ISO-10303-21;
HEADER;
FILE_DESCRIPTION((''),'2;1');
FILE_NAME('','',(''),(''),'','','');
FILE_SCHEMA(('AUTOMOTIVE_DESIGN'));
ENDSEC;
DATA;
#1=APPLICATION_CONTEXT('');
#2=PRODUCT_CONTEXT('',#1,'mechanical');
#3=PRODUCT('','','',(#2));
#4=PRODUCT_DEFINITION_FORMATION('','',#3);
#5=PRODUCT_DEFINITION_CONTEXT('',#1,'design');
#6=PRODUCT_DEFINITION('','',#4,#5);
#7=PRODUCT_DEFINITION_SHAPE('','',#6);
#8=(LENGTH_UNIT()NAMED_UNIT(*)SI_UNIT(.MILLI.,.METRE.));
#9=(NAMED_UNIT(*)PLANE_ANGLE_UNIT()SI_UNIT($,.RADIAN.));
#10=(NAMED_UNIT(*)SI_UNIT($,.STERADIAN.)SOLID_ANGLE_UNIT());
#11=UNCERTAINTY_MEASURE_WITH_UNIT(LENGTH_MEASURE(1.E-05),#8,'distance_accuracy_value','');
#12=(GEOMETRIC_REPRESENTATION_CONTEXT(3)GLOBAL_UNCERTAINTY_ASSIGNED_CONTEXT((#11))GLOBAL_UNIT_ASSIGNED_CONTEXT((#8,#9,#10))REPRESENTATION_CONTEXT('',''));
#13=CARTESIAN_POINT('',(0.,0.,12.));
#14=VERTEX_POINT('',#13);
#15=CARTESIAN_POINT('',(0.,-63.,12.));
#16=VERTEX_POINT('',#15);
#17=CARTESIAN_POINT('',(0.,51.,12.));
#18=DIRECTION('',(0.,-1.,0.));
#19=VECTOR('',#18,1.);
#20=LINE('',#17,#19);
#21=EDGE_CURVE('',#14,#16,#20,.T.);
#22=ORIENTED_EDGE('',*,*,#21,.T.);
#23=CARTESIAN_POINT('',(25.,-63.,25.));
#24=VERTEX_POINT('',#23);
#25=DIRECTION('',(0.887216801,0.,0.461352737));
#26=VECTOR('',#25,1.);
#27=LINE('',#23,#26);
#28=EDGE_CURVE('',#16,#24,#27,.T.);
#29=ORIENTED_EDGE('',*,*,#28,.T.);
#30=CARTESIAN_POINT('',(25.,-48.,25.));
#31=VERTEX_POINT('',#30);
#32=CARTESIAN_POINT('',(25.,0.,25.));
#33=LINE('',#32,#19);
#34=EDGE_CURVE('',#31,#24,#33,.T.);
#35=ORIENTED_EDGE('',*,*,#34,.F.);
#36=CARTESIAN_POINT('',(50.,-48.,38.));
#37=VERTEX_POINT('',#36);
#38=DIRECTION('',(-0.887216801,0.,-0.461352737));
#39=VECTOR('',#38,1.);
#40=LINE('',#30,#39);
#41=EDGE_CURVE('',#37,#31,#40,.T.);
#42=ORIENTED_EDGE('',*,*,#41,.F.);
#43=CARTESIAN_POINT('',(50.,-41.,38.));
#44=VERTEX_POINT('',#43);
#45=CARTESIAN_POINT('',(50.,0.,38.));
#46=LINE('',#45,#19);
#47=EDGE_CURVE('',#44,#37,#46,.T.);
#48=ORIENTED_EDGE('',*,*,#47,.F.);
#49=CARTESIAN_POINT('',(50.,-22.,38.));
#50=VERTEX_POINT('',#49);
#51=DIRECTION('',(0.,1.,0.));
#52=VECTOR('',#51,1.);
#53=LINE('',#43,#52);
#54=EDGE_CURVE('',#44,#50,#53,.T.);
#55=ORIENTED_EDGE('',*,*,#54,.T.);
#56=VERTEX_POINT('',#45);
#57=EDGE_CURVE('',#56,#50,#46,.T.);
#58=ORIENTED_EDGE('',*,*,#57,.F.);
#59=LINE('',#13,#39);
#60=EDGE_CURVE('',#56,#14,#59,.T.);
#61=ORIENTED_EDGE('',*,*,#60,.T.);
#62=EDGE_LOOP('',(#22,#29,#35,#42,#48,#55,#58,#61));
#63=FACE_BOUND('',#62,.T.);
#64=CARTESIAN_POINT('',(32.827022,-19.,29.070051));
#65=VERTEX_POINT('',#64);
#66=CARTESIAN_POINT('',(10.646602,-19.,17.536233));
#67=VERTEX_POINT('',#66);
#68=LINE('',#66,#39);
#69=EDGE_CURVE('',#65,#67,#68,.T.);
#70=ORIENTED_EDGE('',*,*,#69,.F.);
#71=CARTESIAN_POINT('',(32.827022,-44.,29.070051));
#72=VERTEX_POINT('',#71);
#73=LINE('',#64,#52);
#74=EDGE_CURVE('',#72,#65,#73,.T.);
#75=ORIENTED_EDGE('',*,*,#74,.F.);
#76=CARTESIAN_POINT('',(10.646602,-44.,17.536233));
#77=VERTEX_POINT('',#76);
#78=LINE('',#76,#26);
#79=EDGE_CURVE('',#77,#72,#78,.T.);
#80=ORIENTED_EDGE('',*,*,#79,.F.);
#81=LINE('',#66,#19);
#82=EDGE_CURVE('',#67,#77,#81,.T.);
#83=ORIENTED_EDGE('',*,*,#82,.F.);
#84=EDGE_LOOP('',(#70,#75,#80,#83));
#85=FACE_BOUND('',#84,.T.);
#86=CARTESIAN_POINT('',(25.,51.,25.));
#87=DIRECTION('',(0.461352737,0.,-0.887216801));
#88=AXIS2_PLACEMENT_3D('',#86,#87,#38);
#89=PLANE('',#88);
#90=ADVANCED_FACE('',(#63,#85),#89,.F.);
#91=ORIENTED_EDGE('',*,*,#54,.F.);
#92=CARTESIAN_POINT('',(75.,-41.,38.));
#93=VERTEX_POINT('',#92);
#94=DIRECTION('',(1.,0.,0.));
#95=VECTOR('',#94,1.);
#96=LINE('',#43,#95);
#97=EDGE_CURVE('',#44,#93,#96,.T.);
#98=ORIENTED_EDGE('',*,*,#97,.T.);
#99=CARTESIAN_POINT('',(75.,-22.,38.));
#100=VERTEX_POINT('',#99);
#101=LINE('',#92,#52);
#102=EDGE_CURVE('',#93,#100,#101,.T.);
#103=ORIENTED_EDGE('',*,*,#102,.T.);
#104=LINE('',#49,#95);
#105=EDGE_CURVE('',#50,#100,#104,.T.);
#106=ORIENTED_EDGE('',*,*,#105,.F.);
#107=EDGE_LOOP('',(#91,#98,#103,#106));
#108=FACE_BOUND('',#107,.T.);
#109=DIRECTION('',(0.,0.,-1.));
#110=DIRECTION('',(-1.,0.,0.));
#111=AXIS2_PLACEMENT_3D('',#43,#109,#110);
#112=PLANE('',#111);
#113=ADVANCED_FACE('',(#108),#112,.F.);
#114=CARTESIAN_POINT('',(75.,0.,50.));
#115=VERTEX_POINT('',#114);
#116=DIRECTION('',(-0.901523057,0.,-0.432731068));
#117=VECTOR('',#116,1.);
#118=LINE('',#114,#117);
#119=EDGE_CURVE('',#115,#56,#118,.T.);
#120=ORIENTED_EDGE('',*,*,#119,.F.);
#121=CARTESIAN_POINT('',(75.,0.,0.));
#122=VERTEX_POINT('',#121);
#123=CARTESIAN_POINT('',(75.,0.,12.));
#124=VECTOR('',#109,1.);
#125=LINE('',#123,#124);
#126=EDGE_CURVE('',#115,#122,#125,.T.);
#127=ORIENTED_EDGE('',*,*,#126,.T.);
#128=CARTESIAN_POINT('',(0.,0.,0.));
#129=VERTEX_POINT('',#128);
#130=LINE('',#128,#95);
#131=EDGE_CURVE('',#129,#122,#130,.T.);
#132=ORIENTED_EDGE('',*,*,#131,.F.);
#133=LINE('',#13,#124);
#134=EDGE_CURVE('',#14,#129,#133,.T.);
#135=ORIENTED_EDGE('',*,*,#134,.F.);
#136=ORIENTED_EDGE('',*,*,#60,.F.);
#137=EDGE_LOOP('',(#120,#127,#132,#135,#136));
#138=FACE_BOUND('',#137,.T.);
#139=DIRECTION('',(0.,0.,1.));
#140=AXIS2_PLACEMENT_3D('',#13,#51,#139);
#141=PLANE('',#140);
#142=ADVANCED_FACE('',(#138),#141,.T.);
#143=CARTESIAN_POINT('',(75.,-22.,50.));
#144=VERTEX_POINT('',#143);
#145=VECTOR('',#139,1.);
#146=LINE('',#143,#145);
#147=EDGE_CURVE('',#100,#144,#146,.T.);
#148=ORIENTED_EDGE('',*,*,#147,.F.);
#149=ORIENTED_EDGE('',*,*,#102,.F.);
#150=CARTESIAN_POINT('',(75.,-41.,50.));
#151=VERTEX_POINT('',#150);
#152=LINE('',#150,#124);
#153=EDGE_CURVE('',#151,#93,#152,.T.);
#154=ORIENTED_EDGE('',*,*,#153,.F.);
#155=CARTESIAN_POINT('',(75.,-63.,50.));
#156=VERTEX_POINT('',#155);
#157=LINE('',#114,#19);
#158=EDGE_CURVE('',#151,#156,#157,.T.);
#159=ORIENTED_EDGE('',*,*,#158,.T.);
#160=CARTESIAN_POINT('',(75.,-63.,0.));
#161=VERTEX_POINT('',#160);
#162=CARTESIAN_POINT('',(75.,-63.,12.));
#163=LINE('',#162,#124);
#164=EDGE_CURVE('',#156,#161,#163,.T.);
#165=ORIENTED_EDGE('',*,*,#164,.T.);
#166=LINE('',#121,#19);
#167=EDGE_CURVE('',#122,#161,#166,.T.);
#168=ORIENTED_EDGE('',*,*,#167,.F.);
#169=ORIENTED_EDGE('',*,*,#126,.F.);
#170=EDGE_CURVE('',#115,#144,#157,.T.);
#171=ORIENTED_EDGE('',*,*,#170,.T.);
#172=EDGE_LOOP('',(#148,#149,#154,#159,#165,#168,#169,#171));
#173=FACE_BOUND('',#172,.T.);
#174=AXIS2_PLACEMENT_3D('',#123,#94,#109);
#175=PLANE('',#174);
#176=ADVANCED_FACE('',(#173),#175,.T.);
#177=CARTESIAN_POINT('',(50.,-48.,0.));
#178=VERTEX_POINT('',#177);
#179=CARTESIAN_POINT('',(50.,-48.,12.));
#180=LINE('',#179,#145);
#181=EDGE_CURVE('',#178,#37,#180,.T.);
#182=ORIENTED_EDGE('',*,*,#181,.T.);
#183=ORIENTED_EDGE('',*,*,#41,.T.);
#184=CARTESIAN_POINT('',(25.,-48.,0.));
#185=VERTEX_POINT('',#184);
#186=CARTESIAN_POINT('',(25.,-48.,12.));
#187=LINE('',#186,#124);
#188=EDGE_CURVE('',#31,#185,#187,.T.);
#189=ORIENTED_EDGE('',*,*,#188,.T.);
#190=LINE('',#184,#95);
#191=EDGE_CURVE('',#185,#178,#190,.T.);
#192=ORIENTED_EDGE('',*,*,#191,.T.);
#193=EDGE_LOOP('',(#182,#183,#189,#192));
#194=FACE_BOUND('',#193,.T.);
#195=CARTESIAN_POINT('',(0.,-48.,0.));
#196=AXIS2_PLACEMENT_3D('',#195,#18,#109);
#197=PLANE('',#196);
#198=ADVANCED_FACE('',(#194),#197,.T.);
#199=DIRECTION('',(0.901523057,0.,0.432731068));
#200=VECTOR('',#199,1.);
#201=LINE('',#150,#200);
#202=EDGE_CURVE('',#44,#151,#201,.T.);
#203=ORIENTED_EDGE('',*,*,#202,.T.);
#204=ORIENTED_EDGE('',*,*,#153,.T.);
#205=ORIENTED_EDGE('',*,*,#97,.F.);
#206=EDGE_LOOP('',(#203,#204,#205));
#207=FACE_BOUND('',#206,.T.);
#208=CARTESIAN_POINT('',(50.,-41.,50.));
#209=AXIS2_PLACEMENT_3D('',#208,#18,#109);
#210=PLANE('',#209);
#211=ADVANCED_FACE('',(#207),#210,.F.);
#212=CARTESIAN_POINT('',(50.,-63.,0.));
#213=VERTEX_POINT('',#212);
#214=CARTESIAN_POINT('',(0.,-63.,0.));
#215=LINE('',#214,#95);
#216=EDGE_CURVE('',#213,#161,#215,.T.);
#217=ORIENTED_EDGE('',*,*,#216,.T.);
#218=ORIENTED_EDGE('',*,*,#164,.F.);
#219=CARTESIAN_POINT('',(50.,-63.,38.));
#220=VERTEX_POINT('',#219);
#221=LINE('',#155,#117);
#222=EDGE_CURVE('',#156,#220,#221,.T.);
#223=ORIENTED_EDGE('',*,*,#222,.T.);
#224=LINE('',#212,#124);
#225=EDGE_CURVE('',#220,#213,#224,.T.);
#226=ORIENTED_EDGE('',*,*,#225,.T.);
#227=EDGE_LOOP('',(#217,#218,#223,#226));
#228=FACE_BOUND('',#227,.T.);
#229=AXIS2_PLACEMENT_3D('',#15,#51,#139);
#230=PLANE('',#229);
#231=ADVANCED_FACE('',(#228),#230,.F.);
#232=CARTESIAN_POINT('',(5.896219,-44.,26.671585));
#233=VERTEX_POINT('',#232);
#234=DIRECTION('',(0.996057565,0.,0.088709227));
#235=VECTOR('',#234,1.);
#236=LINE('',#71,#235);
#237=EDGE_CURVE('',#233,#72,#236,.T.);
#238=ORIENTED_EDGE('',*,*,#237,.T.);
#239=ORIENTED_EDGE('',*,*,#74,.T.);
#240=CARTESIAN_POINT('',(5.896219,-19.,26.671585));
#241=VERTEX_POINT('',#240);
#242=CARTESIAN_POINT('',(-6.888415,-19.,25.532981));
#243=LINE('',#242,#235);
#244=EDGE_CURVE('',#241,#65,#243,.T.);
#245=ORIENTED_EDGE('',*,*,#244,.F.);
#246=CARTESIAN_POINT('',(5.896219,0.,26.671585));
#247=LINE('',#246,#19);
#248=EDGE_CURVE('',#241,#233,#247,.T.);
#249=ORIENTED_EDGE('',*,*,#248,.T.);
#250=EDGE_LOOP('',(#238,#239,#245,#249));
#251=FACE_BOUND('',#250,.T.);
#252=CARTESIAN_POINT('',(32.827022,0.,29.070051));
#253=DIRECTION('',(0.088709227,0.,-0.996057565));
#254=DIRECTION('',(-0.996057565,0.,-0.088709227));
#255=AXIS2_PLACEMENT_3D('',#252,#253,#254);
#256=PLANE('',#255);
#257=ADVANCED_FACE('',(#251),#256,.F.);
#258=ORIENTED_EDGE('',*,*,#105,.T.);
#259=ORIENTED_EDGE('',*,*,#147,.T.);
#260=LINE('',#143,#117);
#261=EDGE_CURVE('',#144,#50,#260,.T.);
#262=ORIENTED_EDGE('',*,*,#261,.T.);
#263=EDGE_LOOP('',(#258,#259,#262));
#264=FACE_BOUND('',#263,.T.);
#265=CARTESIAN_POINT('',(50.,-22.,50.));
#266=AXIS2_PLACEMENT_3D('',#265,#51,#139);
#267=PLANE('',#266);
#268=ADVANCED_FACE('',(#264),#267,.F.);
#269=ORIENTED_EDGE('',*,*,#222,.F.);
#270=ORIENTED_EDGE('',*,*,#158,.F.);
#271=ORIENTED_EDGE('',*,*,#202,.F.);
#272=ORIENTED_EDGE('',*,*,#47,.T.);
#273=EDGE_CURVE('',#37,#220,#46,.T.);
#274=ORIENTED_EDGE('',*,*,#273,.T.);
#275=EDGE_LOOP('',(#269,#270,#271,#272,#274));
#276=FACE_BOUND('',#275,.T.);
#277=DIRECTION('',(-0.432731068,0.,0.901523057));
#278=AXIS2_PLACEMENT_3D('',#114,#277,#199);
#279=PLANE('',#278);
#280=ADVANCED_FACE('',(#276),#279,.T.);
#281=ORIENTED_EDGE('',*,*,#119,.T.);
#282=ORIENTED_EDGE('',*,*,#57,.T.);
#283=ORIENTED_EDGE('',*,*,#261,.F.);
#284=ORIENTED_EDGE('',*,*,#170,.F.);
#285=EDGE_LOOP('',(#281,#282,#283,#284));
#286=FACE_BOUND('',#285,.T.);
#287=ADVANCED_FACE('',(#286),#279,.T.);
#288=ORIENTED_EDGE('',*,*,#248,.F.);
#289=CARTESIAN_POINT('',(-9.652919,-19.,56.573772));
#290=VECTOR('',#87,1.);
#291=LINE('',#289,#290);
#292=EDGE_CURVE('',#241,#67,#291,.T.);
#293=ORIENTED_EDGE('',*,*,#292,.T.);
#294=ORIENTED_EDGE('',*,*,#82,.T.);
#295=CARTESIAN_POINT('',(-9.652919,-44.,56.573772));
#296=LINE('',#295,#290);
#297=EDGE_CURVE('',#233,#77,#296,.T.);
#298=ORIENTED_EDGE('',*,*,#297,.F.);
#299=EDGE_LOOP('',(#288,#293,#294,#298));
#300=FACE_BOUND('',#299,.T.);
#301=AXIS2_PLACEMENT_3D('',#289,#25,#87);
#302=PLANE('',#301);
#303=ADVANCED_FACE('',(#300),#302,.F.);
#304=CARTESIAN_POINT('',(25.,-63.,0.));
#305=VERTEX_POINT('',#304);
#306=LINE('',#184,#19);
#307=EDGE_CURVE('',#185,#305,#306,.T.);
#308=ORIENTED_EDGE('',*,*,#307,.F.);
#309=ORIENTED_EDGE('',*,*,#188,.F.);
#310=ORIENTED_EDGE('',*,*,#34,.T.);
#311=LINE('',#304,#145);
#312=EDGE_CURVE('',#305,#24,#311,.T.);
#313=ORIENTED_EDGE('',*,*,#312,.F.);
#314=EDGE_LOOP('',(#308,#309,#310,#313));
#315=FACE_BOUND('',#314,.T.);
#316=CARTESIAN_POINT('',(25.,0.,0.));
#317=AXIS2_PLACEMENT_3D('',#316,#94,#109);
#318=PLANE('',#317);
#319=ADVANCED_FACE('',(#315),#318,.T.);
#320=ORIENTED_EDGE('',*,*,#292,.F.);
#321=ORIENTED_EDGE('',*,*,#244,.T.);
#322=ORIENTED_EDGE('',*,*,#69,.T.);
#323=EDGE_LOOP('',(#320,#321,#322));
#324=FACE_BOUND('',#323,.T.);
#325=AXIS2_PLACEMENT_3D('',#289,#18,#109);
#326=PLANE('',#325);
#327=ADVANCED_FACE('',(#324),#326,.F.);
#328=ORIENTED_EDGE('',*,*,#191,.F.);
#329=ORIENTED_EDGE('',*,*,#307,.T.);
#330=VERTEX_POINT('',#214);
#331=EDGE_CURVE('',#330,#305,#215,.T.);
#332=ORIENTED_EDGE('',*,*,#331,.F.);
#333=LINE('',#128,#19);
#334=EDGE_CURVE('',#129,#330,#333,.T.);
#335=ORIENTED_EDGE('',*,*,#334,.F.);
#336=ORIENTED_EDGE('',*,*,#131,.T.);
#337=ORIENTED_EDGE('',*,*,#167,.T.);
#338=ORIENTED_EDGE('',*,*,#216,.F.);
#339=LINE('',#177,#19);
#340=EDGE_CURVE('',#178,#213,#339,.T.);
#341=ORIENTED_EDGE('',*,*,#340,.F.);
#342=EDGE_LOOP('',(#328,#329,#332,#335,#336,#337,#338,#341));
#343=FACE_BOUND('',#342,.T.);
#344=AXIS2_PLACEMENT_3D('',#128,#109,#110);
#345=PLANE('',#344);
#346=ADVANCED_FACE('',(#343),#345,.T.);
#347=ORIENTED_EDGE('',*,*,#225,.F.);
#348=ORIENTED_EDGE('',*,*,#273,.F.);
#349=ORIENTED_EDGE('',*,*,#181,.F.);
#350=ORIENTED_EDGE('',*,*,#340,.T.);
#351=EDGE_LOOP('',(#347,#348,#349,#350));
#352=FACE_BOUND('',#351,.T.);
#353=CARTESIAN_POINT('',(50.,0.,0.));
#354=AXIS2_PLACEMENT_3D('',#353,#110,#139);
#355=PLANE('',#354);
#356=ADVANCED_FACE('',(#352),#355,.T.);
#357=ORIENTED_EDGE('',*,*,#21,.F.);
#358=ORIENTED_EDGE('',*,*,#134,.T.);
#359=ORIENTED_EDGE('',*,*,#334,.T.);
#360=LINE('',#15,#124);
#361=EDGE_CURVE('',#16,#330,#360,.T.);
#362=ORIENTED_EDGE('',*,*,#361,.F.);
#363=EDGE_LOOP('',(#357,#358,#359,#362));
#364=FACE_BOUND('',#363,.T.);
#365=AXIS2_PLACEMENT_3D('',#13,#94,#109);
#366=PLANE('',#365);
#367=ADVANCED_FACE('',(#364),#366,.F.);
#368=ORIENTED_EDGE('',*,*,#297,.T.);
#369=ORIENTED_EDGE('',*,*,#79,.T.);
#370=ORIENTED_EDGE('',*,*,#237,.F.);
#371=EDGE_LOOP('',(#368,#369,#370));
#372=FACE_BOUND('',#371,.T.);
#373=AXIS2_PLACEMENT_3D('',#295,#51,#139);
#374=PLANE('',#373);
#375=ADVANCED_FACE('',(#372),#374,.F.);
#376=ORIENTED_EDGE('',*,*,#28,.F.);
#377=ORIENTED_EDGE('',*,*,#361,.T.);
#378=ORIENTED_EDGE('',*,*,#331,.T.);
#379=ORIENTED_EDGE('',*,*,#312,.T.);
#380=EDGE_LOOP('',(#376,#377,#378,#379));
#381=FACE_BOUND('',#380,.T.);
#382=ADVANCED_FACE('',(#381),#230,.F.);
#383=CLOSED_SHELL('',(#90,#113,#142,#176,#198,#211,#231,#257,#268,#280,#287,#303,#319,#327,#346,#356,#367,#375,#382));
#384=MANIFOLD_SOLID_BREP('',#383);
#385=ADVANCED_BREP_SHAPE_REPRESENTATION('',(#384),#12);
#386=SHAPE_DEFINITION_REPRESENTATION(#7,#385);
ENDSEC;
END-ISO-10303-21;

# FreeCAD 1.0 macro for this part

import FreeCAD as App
import Part
import Sketcher


def add_polygon(sketch, points):
    """Adds a closed chain of lines whose ends are joined by coincident constraints."""
    first, n = sketch.GeometryCount, len(points)
    for a, b in zip(points, points[1:] + points[:1]):
        sketch.addGeometry(Part.LineSegment(App.Vector(*a, 0), App.Vector(*b, 0)), False)
    for i in range(n):
        sketch.addConstraint(Sketcher.Constraint("Coincident", first + i, 2, first + (i + 1) % n, 1))

doc = App.newDocument("Part")
body = doc.addObject("PartDesign::Body", "Body")

sketch1 = doc.addObject("Sketcher::SketchObject", "Sketch")
body.addObject(sketch1)
sketch1.AttachmentSupport = (doc.XY_Plane, [""])
sketch1.MapMode = "FlatFace"
add_polygon(sketch1, [(0, 0), (0, -63), (75, -63), (75, 0)])
sketch1.addConstraint([
    Sketcher.Constraint("Vertical", 0),
    Sketcher.Constraint("Horizontal", 1),
    Sketcher.Constraint("Vertical", 2),
    Sketcher.Constraint("Horizontal", 3),
    Sketcher.Constraint("Coincident", 3, 2, -1, 1),
    Sketcher.Constraint("DistanceX", 1, 1, 1, 2, 75.0),
    Sketcher.Constraint("DistanceY", 0, 2, 0, 1, 63.0),
])
pad1 = doc.addObject("PartDesign::Pad", "Pad")
body.addObject(pad1)
pad1.Profile = sketch1
pad1.Length = 12

sketch2 = doc.addObject("Sketcher::SketchObject", "Sketch001")
body.addObject(sketch2)
sketch2.AttachmentSupport = (doc.XZ_Plane, [""])
sketch2.MapMode = "FlatFace"
sketch2.AttachmentOffset = App.Placement(App.Vector(0, 0, 63), App.Rotation())
add_polygon(sketch2, [(25, 0), (25, 25), (0, 25), (0, 0)])
sketch2.addConstraint([
    Sketcher.Constraint("Vertical", 0),
    Sketcher.Constraint("Horizontal", 1),
    Sketcher.Constraint("Vertical", 2),
    Sketcher.Constraint("Horizontal", 3),
    Sketcher.Constraint("Coincident", 2, 2, -1, 1),
    Sketcher.Constraint("Equal", 3, 0),
    Sketcher.Constraint("DistanceX", 1, 2, 1, 1, 25.0),
])
pad2 = doc.addObject("PartDesign::Pad", "Pad001")
body.addObject(pad2)
pad2.Profile = sketch2
pad2.Length = 63
pad2.Reversed = True

sketch3 = doc.addObject("Sketcher::SketchObject", "Sketch002")
body.addObject(sketch3)
sketch3.AttachmentSupport = (doc.XZ_Plane, [""])
sketch3.MapMode = "FlatFace"
sketch3.AttachmentOffset = App.Placement(App.Vector(0, 0, 63), App.Rotation())
add_polygon(sketch3, [(0, 12), (25, 25), (0, 25)])
sketch3.addConstraint([
    Sketcher.Constraint("Horizontal", 1),
    Sketcher.Constraint("Vertical", 2),
    Sketcher.Constraint("PointOnObject", 1, 2, -2),
    Sketcher.Constraint("DistanceX", 1, 2, 1, 1, 25.0),
    Sketcher.Constraint("DistanceY", 2, 2, 2, 1, 13.0),
    Sketcher.Constraint("DistanceY", -1, 1, 0, 2, 25.0),
])
pocket1 = doc.addObject("PartDesign::Pocket", "Pocket")
body.addObject(pocket1)
pocket1.Profile = sketch3
pocket1.Length = 114

sketch4 = doc.addObject("Sketcher::SketchObject", "Sketch003")
body.addObject(sketch4)
sketch4.AttachmentSupport = (doc.XZ_Plane, [""])
sketch4.MapMode = "FlatFace"
sketch4.AttachmentOffset = App.Placement(App.Vector(0, 0, 63), App.Rotation())
add_polygon(sketch4, [(75, 50), (50, 38), (50, 0), (75, 0)])
sketch4.addConstraint([
    Sketcher.Constraint("Vertical", 1),
    Sketcher.Constraint("Horizontal", 2),
    Sketcher.Constraint("Vertical", 3),
    Sketcher.Constraint("PointOnObject", 1, 2, -1),
    Sketcher.Constraint("DistanceX", 2, 1, 2, 2, 25.0),
    Sketcher.Constraint("DistanceY", 1, 2, 1, 1, 38.0),
    Sketcher.Constraint("DistanceY", 3, 1, 3, 2, 50.0),
    Sketcher.Constraint("DistanceX", -1, 1, 0, 2, 50.0),
])
pad3 = doc.addObject("PartDesign::Pad", "Pad002")
body.addObject(pad3)
pad3.Profile = sketch4
pad3.Length = 63
pad3.Reversed = True

sketch5 = doc.addObject("Sketcher::SketchObject", "Sketch004")
body.addObject(sketch5)
sketch5.AttachmentSupport = (doc.XZ_Plane, [""])
sketch5.MapMode = "FlatFace"
sketch5.AttachmentOffset = App.Placement(App.Vector(0, 0, 63), App.Rotation())
add_polygon(sketch5, [(25, 12), (25, 0), (50, 0), (50, 12)])
sketch5.addConstraint([
    Sketcher.Constraint("Vertical", 0),
    Sketcher.Constraint("Horizontal", 1),
    Sketcher.Constraint("Vertical", 2),
    Sketcher.Constraint("Horizontal", 3),
    Sketcher.Constraint("PointOnObject", 0, 2, -1),
    Sketcher.Constraint("DistanceX", 1, 1, 1, 2, 25.0),
    Sketcher.Constraint("DistanceY", 0, 2, 0, 1, 12.0),
    Sketcher.Constraint("DistanceX", -1, 1, 0, 2, 25.0),
])
pocket2 = doc.addObject("PartDesign::Pocket", "Pocket001")
body.addObject(pocket2)
pocket2.Profile = sketch5
pocket2.Length = 15

sketch6 = doc.addObject("Sketcher::SketchObject", "Sketch005")
body.addObject(sketch6)
sketch6.AttachmentSupport = (doc.XZ_Plane, [""])
sketch6.MapMode = "FlatFace"
sketch6.AttachmentOffset = App.Placement(App.Vector(0, 0, 48), App.Rotation())
add_polygon(sketch6, [(50, 12), (50, 38), (25, 25), (25, 12)])
sketch6.addConstraint([
    Sketcher.Constraint("Vertical", 0),
    Sketcher.Constraint("Vertical", 2),
    Sketcher.Constraint("Horizontal", 3),
    Sketcher.Constraint("DistanceX", 3, 1, 3, 2, 25.0),
    Sketcher.Constraint("DistanceY", 0, 1, 0, 2, 26.0),
    Sketcher.Constraint("DistanceY", 2, 2, 2, 1, 13.0),
    Sketcher.Constraint("DistanceX", -1, 1, 0, 2, 50.0),
    Sketcher.Constraint("DistanceY", -1, 1, 0, 2, 38.0),
])
pad4 = doc.addObject("PartDesign::Pad", "Pad003")
body.addObject(pad4)
pad4.Profile = sketch6
pad4.Length = 48
pad4.Reversed = True

sketch7 = doc.addObject("Sketcher::SketchObject", "Sketch006")
body.addObject(sketch7)
sketch7.AttachmentSupport = (doc.YZ_Plane, [""])
sketch7.MapMode = "FlatFace"
sketch7.AttachmentOffset = App.Placement(App.Vector(0, 0, 75), App.Rotation())
add_polygon(sketch7, [(-22, 50), (-41, 50), (-41, 38), (-22, 38)])
sketch7.addConstraint([
    Sketcher.Constraint("Horizontal", 0),
    Sketcher.Constraint("Vertical", 1),
    Sketcher.Constraint("Horizontal", 2),
    Sketcher.Constraint("Vertical", 3),
    Sketcher.Constraint("DistanceX", 0, 2, 0, 1, 19.0),
    Sketcher.Constraint("DistanceY", 1, 2, 1, 1, 12.0),
    Sketcher.Constraint("DistanceX", 0, 2, -1, 1, 41.0),
    Sketcher.Constraint("DistanceY", -1, 1, 0, 2, 50.0),
])
pocket3 = doc.addObject("PartDesign::Pocket", "Pocket002")
body.addObject(pocket3)
pocket3.Profile = sketch7
pocket3.Length = 25

sketch8 = doc.addObject("Sketcher::SketchObject", "Sketch007")
body.addObject(sketch8)
sketch8.Placement = App.Placement(App.Vector(-4.911839, 0, 9.445844), App.Rotation(App.Vector(0.887216801, 0, 0.461352737), App.Vector(0, 1, 0), App.Vector(-0.461352737, 0, 0.887216801), "ZXY"))
add_polygon(sketch8, [(18, -19), (18, -44), (43, -44), (43, -19)])
sketch8.addConstraint([
    Sketcher.Constraint("Vertical", 0),
    Sketcher.Constraint("Horizontal", 1),
    Sketcher.Constraint("Vertical", 2),
    Sketcher.Constraint("Horizontal", 3),
    Sketcher.Constraint("Equal", 3, 0),
    Sketcher.Constraint("DistanceX", 1, 1, 1, 2, 25.0),
    Sketcher.Constraint("DistanceY", 0, 2, -1, 1, 44.0),
    Sketcher.Constraint("DistanceX", -1, 1, 0, 2, 17.536233),
])
pad5 = doc.addObject("PartDesign::Pad", "Pad004")
body.addObject(pad5)
pad5.Profile = sketch8
pad5.Length = 44

sketch9 = doc.addObject("Sketcher::SketchObject", "Sketch008")
body.addObject(sketch9)
sketch9.AttachmentSupport = (doc.XZ_Plane, [""])
sketch9.MapMode = "FlatFace"
sketch9.AttachmentOffset = App.Placement(App.Vector(0, 0, 44), App.Rotation())
add_polygon(sketch9, [(-10, 57), (3, 32), (33, 29), (13, 68)])
sketch9.addConstraint([
    Sketcher.Constraint("Parallel", 0, 2),
    Sketcher.Constraint("Perpendicular", 2, 3),
    Sketcher.Constraint("Distance", 0, 28.0),
    Sketcher.Constraint("Distance", 2, 44.0),
    Sketcher.Constraint("Distance", 3, 25.0),
    Sketcher.Constraint("DistanceY", -1, 1, 0, 2, 31.731702),
    Sketcher.Constraint("DistanceX", -1, 1, 2, 2, 12.527501),
    Sketcher.Constraint("DistanceX", -1, 1, 1, 2, 32.827022),
])
pocket4 = doc.addObject("PartDesign::Pocket", "Pocket003")
body.addObject(pocket4)
pocket4.Profile = sketch9
pocket4.Length = 44

sketch10 = doc.addObject("Sketcher::SketchObject", "Sketch009")
body.addObject(sketch10)
sketch10.AttachmentSupport = (doc.XZ_Plane, [""])
sketch10.MapMode = "FlatFace"
sketch10.AttachmentOffset = App.Placement(App.Vector(0, 0, 44), App.Rotation())
add_polygon(sketch10, [(6, 27), (33, 29), (3, 32)])
sketch10.addConstraint([
    Sketcher.Constraint("DistanceY", -1, 1, 1, 2, 31.731702),
    Sketcher.Constraint("Distance", 2, 5.70336),
    Sketcher.Constraint("DistanceX", -1, 1, 0, 2, 32.827022),
    Sketcher.Constraint("DistanceY", -1, 1, 0, 2, 29.070051),
    Sketcher.Constraint("DistanceX", -1, 1, 2, 2, 5.896219),
    Sketcher.Constraint("DistanceX", 1, 2, 2, 2, 2.631261),
])
pocket5 = doc.addObject("PartDesign::Pocket", "Pocket004")
body.addObject(pocket5)
pocket5.Profile = sketch10
pocket5.Length = 44

doc.recompute()
